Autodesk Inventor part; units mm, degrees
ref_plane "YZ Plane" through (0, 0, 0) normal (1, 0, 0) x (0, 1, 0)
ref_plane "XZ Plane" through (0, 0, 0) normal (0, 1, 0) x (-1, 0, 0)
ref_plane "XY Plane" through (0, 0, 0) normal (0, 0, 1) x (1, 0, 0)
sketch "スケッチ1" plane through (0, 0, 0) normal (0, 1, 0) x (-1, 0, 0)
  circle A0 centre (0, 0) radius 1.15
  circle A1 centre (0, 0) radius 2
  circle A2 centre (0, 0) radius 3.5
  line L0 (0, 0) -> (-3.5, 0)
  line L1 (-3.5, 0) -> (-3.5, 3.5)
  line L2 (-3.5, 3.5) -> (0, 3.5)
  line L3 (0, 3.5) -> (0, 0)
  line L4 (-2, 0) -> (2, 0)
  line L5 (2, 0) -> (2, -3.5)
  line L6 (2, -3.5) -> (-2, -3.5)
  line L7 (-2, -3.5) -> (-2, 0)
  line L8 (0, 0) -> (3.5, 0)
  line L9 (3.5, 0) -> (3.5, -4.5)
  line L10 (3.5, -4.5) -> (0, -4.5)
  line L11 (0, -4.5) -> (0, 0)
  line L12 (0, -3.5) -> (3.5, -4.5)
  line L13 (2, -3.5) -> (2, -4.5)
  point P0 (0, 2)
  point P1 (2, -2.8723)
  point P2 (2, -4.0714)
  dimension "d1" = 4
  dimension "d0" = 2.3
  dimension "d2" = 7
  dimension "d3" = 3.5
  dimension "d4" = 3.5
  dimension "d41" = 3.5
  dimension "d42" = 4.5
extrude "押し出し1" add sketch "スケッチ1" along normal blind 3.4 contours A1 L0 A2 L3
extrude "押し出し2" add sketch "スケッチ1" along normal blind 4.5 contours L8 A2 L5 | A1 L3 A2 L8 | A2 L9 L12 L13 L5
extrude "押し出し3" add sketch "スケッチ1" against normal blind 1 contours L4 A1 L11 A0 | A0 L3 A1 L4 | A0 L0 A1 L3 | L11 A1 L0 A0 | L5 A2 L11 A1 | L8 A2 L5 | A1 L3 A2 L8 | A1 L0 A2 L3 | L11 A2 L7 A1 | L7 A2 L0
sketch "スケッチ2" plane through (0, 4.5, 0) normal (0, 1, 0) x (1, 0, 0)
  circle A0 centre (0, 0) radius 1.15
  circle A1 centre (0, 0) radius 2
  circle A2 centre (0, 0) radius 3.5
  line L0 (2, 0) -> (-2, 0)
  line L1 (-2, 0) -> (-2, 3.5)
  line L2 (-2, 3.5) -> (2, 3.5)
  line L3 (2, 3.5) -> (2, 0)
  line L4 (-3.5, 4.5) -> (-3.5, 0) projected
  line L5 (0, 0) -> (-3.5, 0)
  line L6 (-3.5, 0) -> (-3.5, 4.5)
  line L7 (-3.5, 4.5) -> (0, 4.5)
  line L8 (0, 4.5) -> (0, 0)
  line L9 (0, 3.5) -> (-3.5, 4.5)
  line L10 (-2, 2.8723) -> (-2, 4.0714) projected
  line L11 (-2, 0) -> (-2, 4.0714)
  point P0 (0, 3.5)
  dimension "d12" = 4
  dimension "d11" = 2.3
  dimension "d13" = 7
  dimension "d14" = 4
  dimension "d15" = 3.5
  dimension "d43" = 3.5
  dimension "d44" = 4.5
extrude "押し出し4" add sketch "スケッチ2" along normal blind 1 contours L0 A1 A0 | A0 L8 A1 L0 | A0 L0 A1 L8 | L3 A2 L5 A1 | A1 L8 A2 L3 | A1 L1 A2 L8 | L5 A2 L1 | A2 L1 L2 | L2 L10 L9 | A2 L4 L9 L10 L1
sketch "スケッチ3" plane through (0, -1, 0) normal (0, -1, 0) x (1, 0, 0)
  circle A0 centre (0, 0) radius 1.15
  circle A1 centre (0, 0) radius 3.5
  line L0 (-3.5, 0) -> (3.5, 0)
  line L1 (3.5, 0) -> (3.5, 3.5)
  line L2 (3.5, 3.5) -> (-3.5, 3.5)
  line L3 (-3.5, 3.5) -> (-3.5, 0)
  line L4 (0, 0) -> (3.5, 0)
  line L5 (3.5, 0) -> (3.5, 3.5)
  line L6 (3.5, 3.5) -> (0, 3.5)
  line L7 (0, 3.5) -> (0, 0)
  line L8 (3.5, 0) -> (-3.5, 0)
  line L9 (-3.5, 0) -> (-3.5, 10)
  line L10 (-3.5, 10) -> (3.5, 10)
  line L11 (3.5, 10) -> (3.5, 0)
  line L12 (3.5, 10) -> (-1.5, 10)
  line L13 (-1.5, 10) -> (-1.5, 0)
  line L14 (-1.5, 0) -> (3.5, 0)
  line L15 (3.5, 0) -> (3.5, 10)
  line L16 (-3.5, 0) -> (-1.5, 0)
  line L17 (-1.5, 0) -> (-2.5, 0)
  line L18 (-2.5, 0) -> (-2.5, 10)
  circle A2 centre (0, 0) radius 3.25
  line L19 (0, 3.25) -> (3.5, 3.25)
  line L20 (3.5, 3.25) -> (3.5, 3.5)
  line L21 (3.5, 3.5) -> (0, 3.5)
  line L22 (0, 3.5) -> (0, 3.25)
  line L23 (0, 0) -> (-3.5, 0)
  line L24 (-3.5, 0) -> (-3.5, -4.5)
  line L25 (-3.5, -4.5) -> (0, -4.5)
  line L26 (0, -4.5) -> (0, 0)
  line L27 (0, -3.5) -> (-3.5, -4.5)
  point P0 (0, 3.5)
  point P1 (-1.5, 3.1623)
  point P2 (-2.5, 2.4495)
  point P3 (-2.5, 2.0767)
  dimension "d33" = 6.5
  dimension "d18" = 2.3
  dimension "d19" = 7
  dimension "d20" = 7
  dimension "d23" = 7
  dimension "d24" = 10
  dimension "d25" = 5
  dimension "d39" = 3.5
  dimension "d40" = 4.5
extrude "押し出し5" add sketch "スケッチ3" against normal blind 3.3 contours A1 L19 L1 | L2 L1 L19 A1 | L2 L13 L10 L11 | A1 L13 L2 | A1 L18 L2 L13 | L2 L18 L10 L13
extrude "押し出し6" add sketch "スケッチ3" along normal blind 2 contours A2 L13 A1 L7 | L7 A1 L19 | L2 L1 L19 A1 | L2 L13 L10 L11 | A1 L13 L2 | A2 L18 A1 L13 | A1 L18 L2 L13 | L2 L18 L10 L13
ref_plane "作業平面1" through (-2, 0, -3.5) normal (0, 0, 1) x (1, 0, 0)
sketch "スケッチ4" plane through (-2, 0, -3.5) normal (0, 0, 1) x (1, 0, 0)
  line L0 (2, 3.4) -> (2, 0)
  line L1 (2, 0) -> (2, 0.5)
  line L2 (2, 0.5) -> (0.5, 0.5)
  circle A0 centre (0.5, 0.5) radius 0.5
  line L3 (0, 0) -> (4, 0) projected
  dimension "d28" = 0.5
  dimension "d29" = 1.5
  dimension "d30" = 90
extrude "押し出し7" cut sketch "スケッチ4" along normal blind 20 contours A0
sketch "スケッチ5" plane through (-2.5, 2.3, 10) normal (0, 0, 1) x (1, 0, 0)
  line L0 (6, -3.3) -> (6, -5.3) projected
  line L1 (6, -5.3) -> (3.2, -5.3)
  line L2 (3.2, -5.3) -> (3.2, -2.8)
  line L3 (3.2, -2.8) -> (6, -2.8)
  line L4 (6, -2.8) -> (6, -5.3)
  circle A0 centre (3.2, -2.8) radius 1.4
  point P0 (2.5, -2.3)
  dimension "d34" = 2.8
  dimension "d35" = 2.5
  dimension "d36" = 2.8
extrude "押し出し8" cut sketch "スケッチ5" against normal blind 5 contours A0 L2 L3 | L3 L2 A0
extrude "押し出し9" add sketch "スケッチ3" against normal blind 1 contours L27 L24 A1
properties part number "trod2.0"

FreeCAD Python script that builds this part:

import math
import FreeCAD as App
import Part
import Sketcher
Q = App.Units.Quantity

doc = App.newDocument("Part")
body = doc.addObject("PartDesign::Body", "Body")

# Sketch on XZ plane
sketch1 = doc.addObject("Sketcher::SketchObject", "Sketch")
body.addObject(sketch1)
sketch1.AttachmentSupport = (doc.XZ_Plane, [""])
sketch1.MapMode = "FlatFace"
sketch1.addGeometry([
    Part.ArcOfCircle(Part.Circle(App.Vector(0, 0, 0), App.Vector(0, 0, 1), 2), math.radians(0), math.radians(90)),
    Part.LineSegment(App.Vector(0, 2, 0), App.Vector(0, 3.5, 0)),
    Part.ArcOfCircle(Part.Circle(App.Vector(0, 0, 0), App.Vector(0, 0, 1), 3.5), math.radians(0), math.radians(90)),
    Part.LineSegment(App.Vector(3.5, 0, 0), App.Vector(2, 0, 0)),
], False)
sketch1.addConstraint([
    Sketcher.Constraint("Coincident", 0, 2, 1, 1),
    Sketcher.Constraint("Coincident", 1, 2, 2, 2),
    Sketcher.Constraint("Coincident", 2, 1, 3, 1),
    Sketcher.Constraint("Coincident", 3, 2, 0, 1),
    Sketcher.Constraint("Vertical", 1),
    Sketcher.Constraint("Horizontal", 3),
    Sketcher.Constraint("Coincident", 0, 3, -1, 1),
    Sketcher.Constraint("Coincident", 2, 3, -1, 1),
    Sketcher.Constraint("PointOnObject", 0, 2, -2),
    Sketcher.Constraint("PointOnObject", 2, 1, -1),
    Sketcher.Constraint("Radius", 0, Q("2 mm")),
    Sketcher.Constraint("Radius", 2, Q("3.5 mm")),
])
pad1 = doc.addObject("PartDesign::Pad", "Pad")
body.addObject(pad1)
pad1.Profile = sketch1
pad1.Length = 3.4
pad1.Reversed = True

# Sketch on XZ plane
sketch2 = doc.addObject("Sketcher::SketchObject", "Sketch001")
body.addObject(sketch2)
sketch2.AttachmentSupport = (doc.XZ_Plane, [""])
sketch2.MapMode = "FlatFace"
sketch2.addGeometry([
    Part.LineSegment(App.Vector(-2, 0, 0), App.Vector(-2, -4.1, 0)),  # 0
    Part.LineSegment(App.Vector(-2, -4.1, 0), App.Vector(-3.5, -4.5, 0)),  # 1
    Part.LineSegment(App.Vector(-3.5, -4.5, 0), App.Vector(-3.5, 0, 0)),  # 2
    Part.ArcOfCircle(Part.Circle(App.Vector(0, 0, 0), App.Vector(0, 0, 1), 3.5), math.radians(90), math.radians(180)),  # 3
    Part.LineSegment(App.Vector(0, 3.5, 0), App.Vector(0, 2, 0)),  # 4
    Part.ArcOfCircle(Part.Circle(App.Vector(0, 0, 0), App.Vector(0, 0, 1), 2), math.radians(90), math.radians(180)),  # 5
], False)
sketch2.addConstraint([
    Sketcher.Constraint("Coincident", 0, 2, 1, 1),
    Sketcher.Constraint("Coincident", 1, 2, 2, 1),
    Sketcher.Constraint("Tangent", 2, 2, 3, 2),
    Sketcher.Constraint("Coincident", 3, 1, 4, 1),
    Sketcher.Constraint("Coincident", 4, 2, 5, 1),
    Sketcher.Constraint("Tangent", 5, 2, 0, 1),
    Sketcher.Constraint("Vertical", 0),
    Sketcher.Constraint("Vertical", 2),
    Sketcher.Constraint("Vertical", 4),
    Sketcher.Constraint("Coincident", 3, 3, -1, 1),
    Sketcher.Constraint("Coincident", 5, 3, -1, 1),
    Sketcher.Constraint("PointOnObject", 3, 1, -2),
    Sketcher.Constraint("Radius", 5, Q("2 mm")),
    Sketcher.Constraint("Radius", 3, Q("3.5 mm")),
    Sketcher.Constraint("DistanceY", 2, 1, 2, 2, Q("4.5 mm")),
    Sketcher.Constraint("Distance", 1, Q("1.56 mm")),
])
pad2 = doc.addObject("PartDesign::Pad", "Pad001")
body.addObject(pad2)
pad2.Profile = sketch2
pad2.Length = 4.5
pad2.Reversed = True

# Sketch on XZ plane
sketch3 = doc.addObject("Sketcher::SketchObject", "Sketch002")
body.addObject(sketch3)
sketch3.AttachmentSupport = (doc.XZ_Plane, [""])
sketch3.MapMode = "FlatFace"
sketch3.addGeometry([
    Part.Circle(App.Vector(0, 0, 0), App.Vector(0, 0, 1), 3.5),
    Part.Circle(App.Vector(0, 0, 0), App.Vector(0, 0, 1), 1.1),
], False)
sketch3.addConstraint([
    Sketcher.Constraint("Coincident", 0, 3, -1, 1),
    Sketcher.Constraint("Coincident", 1, 3, -1, 1),
    Sketcher.Constraint("Diameter", 0, Q("7 mm")),
    Sketcher.Constraint("Diameter", 1, Q("2.3 mm")),
])
pad3 = doc.addObject("PartDesign::Pad", "Pad002")
body.addObject(pad3)
pad3.Profile = sketch3
pad3.Length = 1

# Sketch on XZ plane
sketch4 = doc.addObject("Sketcher::SketchObject", "Sketch003")
body.addObject(sketch4)
sketch4.AttachmentSupport = (doc.XZ_Plane, [""])
sketch4.MapMode = "FlatFace"
sketch4.AttachmentOffset = App.Placement(App.Vector(0, 0, -4.5), App.Rotation())
sketch4.addGeometry([
    Part.LineSegment(App.Vector(0, -3.5, 0), App.Vector(-3.5, -4.5, 0)),
    Part.LineSegment(App.Vector(-3.5, -4.5, 0), App.Vector(-3.5, 0, 0)),
    Part.ArcOfCircle(Part.Circle(App.Vector(0, 0, 0), App.Vector(0, 0, 1), 3.5), math.radians(-90), math.radians(180)),
    Part.Circle(App.Vector(0, 0, 0), App.Vector(0, 0, 1), 1.1),
], False)
sketch4.addConstraint([
    Sketcher.Constraint("Coincident", 0, 2, 1, 1),
    Sketcher.Constraint("Tangent", 1, 2, 2, 2),
    Sketcher.Constraint("Coincident", 2, 1, 0, 1),
    Sketcher.Constraint("Vertical", 1),
    Sketcher.Constraint("Coincident", 2, 3, -1, 1),
    Sketcher.Constraint("Coincident", 3, 3, -1, 1),
    Sketcher.Constraint("PointOnObject", 2, 1, -2),
    Sketcher.Constraint("Diameter", 3, Q("2.3 mm")),
    Sketcher.Constraint("Radius", 2, Q("3.5 mm")),
    Sketcher.Constraint("DistanceY", 1, 1, 1, 2, Q("4.5 mm")),
])
pad4 = doc.addObject("PartDesign::Pad", "Pad003")
body.addObject(pad4)
pad4.Profile = sketch4
pad4.Length = 1
pad4.Reversed = True

# Sketch on XZ plane
sketch5 = doc.addObject("Sketcher::SketchObject", "Sketch004")
body.addObject(sketch5)
sketch5.AttachmentSupport = (doc.XZ_Plane, [""])
sketch5.MapMode = "FlatFace"
sketch5.AttachmentOffset = App.Placement(App.Vector(0, 0, 1), App.Rotation())
sketch5.addGeometry([
    Part.LineSegment(App.Vector(3.5, 0, 0), App.Vector(3.5, 10, 0)),
    Part.LineSegment(App.Vector(3.5, 10, 0), App.Vector(-2.5, 10, 0)),
    Part.LineSegment(App.Vector(-2.5, 10, 0), App.Vector(-2.5, 2.4, 0)),
    Part.ArcOfCircle(Part.Circle(App.Vector(0, 0, 0), App.Vector(0, 0, 1), 3.5), math.radians(0), math.radians(136)),
], False)
sketch5.addConstraint([
    Sketcher.Constraint("Coincident", 0, 2, 1, 1),
    Sketcher.Constraint("Coincident", 1, 2, 2, 1),
    Sketcher.Constraint("Coincident", 2, 2, 3, 2),
    Sketcher.Constraint("Tangent", 3, 1, 0, 1),
    Sketcher.Constraint("Vertical", 0),
    Sketcher.Constraint("Horizontal", 1),
    Sketcher.Constraint("Vertical", 2),
    Sketcher.Constraint("Coincident", 3, 3, -1, 1),
    Sketcher.Constraint("Radius", 3, Q("3.5 mm")),
    Sketcher.Constraint("DistanceY", 0, 1, 0, 2, Q("10 mm")),
    Sketcher.Constraint("DistanceX", 1, 2, 1, 1, Q("6 mm")),
])
pad5 = doc.addObject("PartDesign::Pad", "Pad004")
body.addObject(pad5)
pad5.Profile = sketch5
pad5.Length = 3.3
pad5.Reversed = True

# Sketch on XZ plane
sketch6 = doc.addObject("Sketcher::SketchObject", "Sketch005")
body.addObject(sketch6)
sketch6.AttachmentSupport = (doc.XZ_Plane, [""])
sketch6.MapMode = "FlatFace"
sketch6.AttachmentOffset = App.Placement(App.Vector(0, 0, 1), App.Rotation())
sketch6.addGeometry([
    Part.LineSegment(App.Vector(0, 3.2, 0), App.Vector(3.5, 3.2, 0)),  # 0
    Part.LineSegment(App.Vector(3.5, 3.2, 0), App.Vector(3.5, 10, 0)),  # 1
    Part.LineSegment(App.Vector(3.5, 10, 0), App.Vector(-2.5, 10, 0)),  # 2
    Part.LineSegment(App.Vector(-2.5, 10, 0), App.Vector(-2.5, 2.1, 0)),  # 3
    Part.ArcOfCircle(Part.Circle(App.Vector(0, 0, 0), App.Vector(0, 0, 1), 3.2), math.radians(90), math.radians(140)),  # 4
], False)
sketch6.addConstraint([
    Sketcher.Constraint("Coincident", 0, 2, 1, 1),
    Sketcher.Constraint("Coincident", 1, 2, 2, 1),
    Sketcher.Constraint("Coincident", 2, 2, 3, 1),
    Sketcher.Constraint("Coincident", 3, 2, 4, 2),
    Sketcher.Constraint("Tangent", 4, 1, 0, 1),
    Sketcher.Constraint("Horizontal", 0),
    Sketcher.Constraint("Vertical", 1),
    Sketcher.Constraint("Horizontal", 2),
    Sketcher.Constraint("Vertical", 3),
    Sketcher.Constraint("Coincident", 4, 3, -1, 1),
    Sketcher.Constraint("Radius", 4, Q("3.25 mm")),
    Sketcher.Constraint("DistanceX", 0, 1, 0, 2, Q("3.5 mm")),
    Sketcher.Constraint("DistanceY", -1, 1, 1, 2, Q("10 mm")),
    Sketcher.Constraint("DistanceX", 2, 2, 2, 1, Q("6 mm")),
])
pad6 = doc.addObject("PartDesign::Pad", "Pad005")
body.addObject(pad6)
pad6.Profile = sketch6
pad6.Length = 2

# Sketch on XY plane
sketch7 = doc.addObject("Sketcher::SketchObject", "Sketch006")
body.addObject(sketch7)
sketch7.AttachmentSupport = (doc.XY_Plane, [""])
sketch7.MapMode = "FlatFace"
sketch7.AttachmentOffset = App.Placement(App.Vector(0, 0, -3.5), App.Rotation())
sketch7.addGeometry(Part.Circle(App.Vector(-1.5, 0.5, 0), App.Vector(0, 0, 1), 0.5), False)
sketch7.addConstraint([
    Sketcher.Constraint("Diameter", 0, Q("1 mm")),
    Sketcher.Constraint("DistanceX", 0, 3, -1, 1, Q("1.5 mm")),
    Sketcher.Constraint("DistanceY", -1, 1, 0, 3, Q("0.5 mm")),
])
pocket1 = doc.addObject("PartDesign::Pocket", "Pocket")
body.addObject(pocket1)
pocket1.Profile = sketch7
pocket1.Length = 20
pocket1.Reversed = True

# Sketch on XY plane
sketch8 = doc.addObject("Sketcher::SketchObject", "Sketch007")
body.addObject(sketch8)
sketch8.AttachmentSupport = (doc.XY_Plane, [""])
sketch8.MapMode = "FlatFace"
sketch8.AttachmentOffset = App.Placement(App.Vector(0, 0, 10), App.Rotation())
sketch8.addGeometry(Part.Circle(App.Vector(0.7, -0.5, 0), App.Vector(0, 0, 1), 1.4), False)
sketch8.addConstraint([
    Sketcher.Constraint("Diameter", 0, Q("2.8 mm")),
    Sketcher.Constraint("DistanceX", -1, 1, 0, 3, Q("0.7 mm")),
    Sketcher.Constraint("DistanceY", 0, 3, -1, 1, Q("0.5 mm")),
])
pocket2 = doc.addObject("PartDesign::Pocket", "Pocket001")
body.addObject(pocket2)
pocket2.Profile = sketch8
pocket2.Length = 5

# Sketch on XZ plane
sketch9 = doc.addObject("Sketcher::SketchObject", "Sketch008")
body.addObject(sketch9)
sketch9.AttachmentSupport = (doc.XZ_Plane, [""])
sketch9.MapMode = "FlatFace"
sketch9.AttachmentOffset = App.Placement(App.Vector(0, 0, 1), App.Rotation())
sketch9.addGeometry([
    Part.LineSegment(App.Vector(-3.5, -4.5, 0), App.Vector(0, -3.5, 0)),
    Part.ArcOfCircle(Part.Circle(App.Vector(0, 0, 0), App.Vector(0, 0, 1), 3.5), math.radians(180), math.radians(270)),
    Part.LineSegment(App.Vector(-3.5, 0, 0), App.Vector(-3.5, -4.5, 0)),
], False)
sketch9.addConstraint([
    Sketcher.Constraint("Coincident", 0, 2, 1, 2),
    Sketcher.Constraint("Tangent", 1, 1, 2, 1),
    Sketcher.Constraint("Coincident", 2, 2, 0, 1),
    Sketcher.Constraint("Vertical", 2),
    Sketcher.Constraint("Coincident", 1, 3, -1, 1),
    Sketcher.Constraint("PointOnObject", 0, 2, -2),
    Sketcher.Constraint("Radius", 1, Q("3.5 mm")),
    Sketcher.Constraint("DistanceY", 2, 2, 2, 1, Q("4.5 mm")),
])
pad7 = doc.addObject("PartDesign::Pad", "Pad006")
body.addObject(pad7)
pad7.Profile = sketch9
pad7.Length = 1
pad7.Reversed = True

doc.recompute()
